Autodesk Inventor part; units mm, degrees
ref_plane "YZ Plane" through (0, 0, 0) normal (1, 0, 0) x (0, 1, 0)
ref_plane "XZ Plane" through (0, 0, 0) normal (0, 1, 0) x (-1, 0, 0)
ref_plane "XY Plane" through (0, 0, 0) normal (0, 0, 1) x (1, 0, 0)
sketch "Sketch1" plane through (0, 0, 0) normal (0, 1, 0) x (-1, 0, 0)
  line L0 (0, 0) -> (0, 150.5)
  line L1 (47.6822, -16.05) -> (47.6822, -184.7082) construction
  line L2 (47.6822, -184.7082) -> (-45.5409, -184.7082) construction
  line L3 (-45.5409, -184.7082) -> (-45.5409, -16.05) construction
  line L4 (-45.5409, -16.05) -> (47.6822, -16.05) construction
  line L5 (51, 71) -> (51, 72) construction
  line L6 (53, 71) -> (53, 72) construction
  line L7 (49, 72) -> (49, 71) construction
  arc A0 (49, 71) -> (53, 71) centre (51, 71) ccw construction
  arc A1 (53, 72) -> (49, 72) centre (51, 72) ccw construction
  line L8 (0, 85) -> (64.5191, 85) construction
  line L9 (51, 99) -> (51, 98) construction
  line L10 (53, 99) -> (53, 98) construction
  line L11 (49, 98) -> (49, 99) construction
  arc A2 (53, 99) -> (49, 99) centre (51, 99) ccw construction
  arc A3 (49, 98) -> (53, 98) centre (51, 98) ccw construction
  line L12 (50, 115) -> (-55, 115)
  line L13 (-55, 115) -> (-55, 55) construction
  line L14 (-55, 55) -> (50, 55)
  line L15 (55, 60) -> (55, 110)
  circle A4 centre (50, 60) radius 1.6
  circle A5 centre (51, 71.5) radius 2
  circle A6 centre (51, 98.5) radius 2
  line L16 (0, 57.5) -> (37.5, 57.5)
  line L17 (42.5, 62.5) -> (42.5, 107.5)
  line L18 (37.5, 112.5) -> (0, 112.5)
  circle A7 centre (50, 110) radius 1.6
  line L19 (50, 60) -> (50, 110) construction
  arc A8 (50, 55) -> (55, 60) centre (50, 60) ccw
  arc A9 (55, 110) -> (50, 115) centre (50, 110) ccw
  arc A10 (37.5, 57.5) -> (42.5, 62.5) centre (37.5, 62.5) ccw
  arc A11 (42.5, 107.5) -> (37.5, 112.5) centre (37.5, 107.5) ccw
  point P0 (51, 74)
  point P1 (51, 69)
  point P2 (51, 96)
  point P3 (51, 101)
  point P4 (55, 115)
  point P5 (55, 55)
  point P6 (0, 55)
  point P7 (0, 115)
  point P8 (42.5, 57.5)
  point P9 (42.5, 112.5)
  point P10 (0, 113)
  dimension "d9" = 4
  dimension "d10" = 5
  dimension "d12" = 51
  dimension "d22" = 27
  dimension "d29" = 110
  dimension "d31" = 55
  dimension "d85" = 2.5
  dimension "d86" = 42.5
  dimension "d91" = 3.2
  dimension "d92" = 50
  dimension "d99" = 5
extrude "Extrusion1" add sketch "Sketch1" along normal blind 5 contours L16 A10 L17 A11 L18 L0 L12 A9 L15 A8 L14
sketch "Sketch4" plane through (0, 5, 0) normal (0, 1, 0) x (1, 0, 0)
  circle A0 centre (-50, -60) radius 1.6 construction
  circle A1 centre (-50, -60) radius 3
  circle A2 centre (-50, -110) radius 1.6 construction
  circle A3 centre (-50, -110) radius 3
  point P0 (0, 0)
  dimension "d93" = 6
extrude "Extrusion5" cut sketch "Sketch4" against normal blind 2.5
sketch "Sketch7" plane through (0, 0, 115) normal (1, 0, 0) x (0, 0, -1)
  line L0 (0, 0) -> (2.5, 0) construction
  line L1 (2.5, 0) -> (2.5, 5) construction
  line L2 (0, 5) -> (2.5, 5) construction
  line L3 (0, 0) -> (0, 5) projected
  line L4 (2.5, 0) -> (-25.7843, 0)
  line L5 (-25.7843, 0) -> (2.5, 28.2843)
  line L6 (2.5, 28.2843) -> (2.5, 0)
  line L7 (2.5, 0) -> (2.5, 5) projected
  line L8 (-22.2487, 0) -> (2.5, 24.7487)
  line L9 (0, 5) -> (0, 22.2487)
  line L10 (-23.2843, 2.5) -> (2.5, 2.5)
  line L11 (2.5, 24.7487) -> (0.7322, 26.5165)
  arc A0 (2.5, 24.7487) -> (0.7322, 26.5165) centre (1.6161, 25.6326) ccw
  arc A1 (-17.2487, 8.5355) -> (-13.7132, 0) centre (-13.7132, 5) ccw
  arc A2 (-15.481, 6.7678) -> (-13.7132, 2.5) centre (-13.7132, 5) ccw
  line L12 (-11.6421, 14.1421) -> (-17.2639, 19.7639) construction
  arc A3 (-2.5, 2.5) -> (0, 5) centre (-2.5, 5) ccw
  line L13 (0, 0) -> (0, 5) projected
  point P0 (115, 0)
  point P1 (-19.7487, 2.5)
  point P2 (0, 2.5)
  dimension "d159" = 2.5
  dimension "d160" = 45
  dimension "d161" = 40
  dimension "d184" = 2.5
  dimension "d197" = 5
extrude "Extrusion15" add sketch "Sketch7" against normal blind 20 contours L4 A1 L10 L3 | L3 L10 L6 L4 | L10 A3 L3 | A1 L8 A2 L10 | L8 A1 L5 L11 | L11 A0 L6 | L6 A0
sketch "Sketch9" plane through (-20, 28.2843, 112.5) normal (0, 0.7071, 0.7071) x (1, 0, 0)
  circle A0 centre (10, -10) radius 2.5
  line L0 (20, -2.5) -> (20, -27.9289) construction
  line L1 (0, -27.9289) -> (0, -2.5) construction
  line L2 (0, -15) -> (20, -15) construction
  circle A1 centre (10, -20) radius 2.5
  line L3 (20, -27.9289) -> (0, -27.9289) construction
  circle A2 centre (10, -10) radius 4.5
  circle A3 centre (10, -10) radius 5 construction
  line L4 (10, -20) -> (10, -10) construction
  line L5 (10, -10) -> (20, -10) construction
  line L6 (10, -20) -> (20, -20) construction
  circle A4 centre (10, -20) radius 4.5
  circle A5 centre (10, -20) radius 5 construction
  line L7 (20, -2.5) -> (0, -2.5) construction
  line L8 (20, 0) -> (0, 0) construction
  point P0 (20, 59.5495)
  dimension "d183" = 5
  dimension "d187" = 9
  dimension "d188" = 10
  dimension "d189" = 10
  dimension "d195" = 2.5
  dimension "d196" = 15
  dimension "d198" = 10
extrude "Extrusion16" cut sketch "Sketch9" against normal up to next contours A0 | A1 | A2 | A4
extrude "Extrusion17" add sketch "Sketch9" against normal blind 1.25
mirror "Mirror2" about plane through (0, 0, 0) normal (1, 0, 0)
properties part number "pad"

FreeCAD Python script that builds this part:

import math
import FreeCAD as App
import Part
import Sketcher

V = App.Vector
Q = App.Units.Quantity

doc = App.newDocument("Part")
body = doc.addObject("PartDesign::Body", "Body")

sketch1 = doc.addObject("Sketcher::SketchObject", "Sketch")
body.addObject(sketch1)
sketch1.AttachmentSupport = (doc.XZ_Plane, [""])
sketch1.MapMode = "FlatFace"
sketch1.addGeometry([
    Part.LineSegment(V(-37.5, 57.5, 0), V(0, 57.5, 0)),
    Part.LineSegment(V(0, 57.5, 0), V(0, 55, 0)),
    Part.LineSegment(V(0, 55, 0), V(-50, 55, 0)),
    Part.ArcOfCircle(Part.Circle(V(-50, 60, 0), V(0, 0, 1), 5), math.radians(180), math.radians(270)),
    Part.LineSegment(V(-55, 60, 0), V(-55, 110, 0)),
    Part.ArcOfCircle(Part.Circle(V(-50, 110, 0), V(0, 0, 1), 5), math.radians(90), math.radians(180)),
    Part.LineSegment(V(-50, 115, 0), V(0, 115, 0)),
    Part.LineSegment(V(0, 115, 0), V(0, 112.5, 0)),
    Part.LineSegment(V(0, 112.5, 0), V(-37.5, 112.5, 0)),
    Part.ArcOfCircle(Part.Circle(V(-37.5, 107.5, 0), V(0, 0, 1), 5), math.radians(90), math.radians(180)),
    Part.LineSegment(V(-42.5, 107.5, 0), V(-42.5, 62.5, 0)),
    Part.ArcOfCircle(Part.Circle(V(-37.5, 62.5, 0), V(0, 0, 1), 5), math.radians(180), math.radians(270)),
    Part.Circle(V(-50, 60, 0), V(0, 0, 1), 1.6),
    Part.Circle(V(-51, 71.5, 0), V(0, 0, 1), 2),
    Part.Circle(V(-51, 98.5, 0), V(0, 0, 1), 2),
    Part.Circle(V(-50, 110, 0), V(0, 0, 1), 1.6),
], False)
sketch1.addConstraint([
    Sketcher.Constraint("Coincident", 0, 2, 1, 1),
    Sketcher.Constraint("Coincident", 1, 2, 2, 1),
    Sketcher.Constraint("Tangent", 2, 2, 3, 2),
    Sketcher.Constraint("Tangent", 3, 1, 4, 1),
    Sketcher.Constraint("Tangent", 4, 2, 5, 2),
    Sketcher.Constraint("Tangent", 5, 1, 6, 1),
    Sketcher.Constraint("Coincident", 6, 2, 7, 1),
    Sketcher.Constraint("Coincident", 7, 2, 8, 1),
    Sketcher.Constraint("Tangent", 8, 2, 9, 1),
    Sketcher.Constraint("Tangent", 9, 2, 10, 1),
    Sketcher.Constraint("Tangent", 10, 2, 11, 1),
    Sketcher.Constraint("Tangent", 11, 2, 0, 1),
    Sketcher.Constraint("Horizontal", 0),
    Sketcher.Constraint("Vertical", 1),
    Sketcher.Constraint("Horizontal", 2),
    Sketcher.Constraint("Vertical", 4),
    Sketcher.Constraint("Horizontal", 6),
    Sketcher.Constraint("Vertical", 7),
    Sketcher.Constraint("Horizontal", 8),
    Sketcher.Constraint("Vertical", 10),
    Sketcher.Constraint("Coincident", 12, 3, 3, 3),
    Sketcher.Constraint("Coincident", 15, 3, 5, 3),
    Sketcher.Constraint("Equal", 3, 5),
    Sketcher.Constraint("Equal", 5, 9),
    Sketcher.Constraint("Equal", 9, 11),
    Sketcher.Constraint("Equal", 13, 14),
    Sketcher.Constraint("Equal", 12, 15),
    Sketcher.Constraint("PointOnObject", 0, 2, -2),
    Sketcher.Constraint("PointOnObject", 6, 2, -2),
    Sketcher.Constraint("Vertical", 13, 3, 14, 3),
    Sketcher.Constraint("Equal", 6, 4),
    Sketcher.Constraint("Equal", 1, 7),
    Sketcher.Constraint("Diameter", 13, 4.0),
    Sketcher.Constraint("Radius", 3, 5.0),
    Sketcher.Constraint("Diameter", 12, 3.2),
    Sketcher.Constraint("DistanceX", 2, 2, 2, 1, 50.0),
    Sketcher.Constraint("DistanceY", 1, 2, 1, 1, 2.5),
    Sketcher.Constraint("DistanceY", -1, 1, 5, 3, 110.0),
    Sketcher.Constraint("DistanceX", 13, 3, -1, 1, 51.0),
    Sketcher.Constraint("DistanceY", 13, 3, 14, 3, 27.0),
    Sketcher.Constraint("DistanceX", 9, 2, -1, 1, 42.5),
    Sketcher.Constraint("DistanceY", 11, 3, 13, 3, 9.0),
])
pad1 = doc.addObject("PartDesign::Pad", "Pad")
body.addObject(pad1)
pad1.Profile = sketch1
pad1.Length = 5
pad1.Reversed = True

sketch2 = doc.addObject("Sketcher::SketchObject", "Sketch001")
body.addObject(sketch2)
sketch2.AttachmentSupport = (doc.XZ_Plane, [""])
sketch2.MapMode = "FlatFace"
sketch2.AttachmentOffset = App.Placement(V(0, 0, -5), App.Rotation())
sketch2.addGeometry([
    Part.Circle(V(-50, 60, 0), V(0, 0, 1), 3),
    Part.Circle(V(-50, 110, 0), V(0, 0, 1), 3),
], False)
sketch2.addConstraint([
    Sketcher.Constraint("Equal", 0, 1),
    Sketcher.Constraint("Vertical", 0, 3, 1, 3),
    Sketcher.Constraint("Diameter", 0, 6.0),
    Sketcher.Constraint("DistanceX", 0, 3, -1, 1, 50.0),
    Sketcher.Constraint("DistanceY", -1, 1, 0, 3, 60.0),
    Sketcher.Constraint("DistanceY", -1, 1, 1, 3, 110.0),
])
pocket1 = doc.addObject("PartDesign::Pocket", "Pocket")
body.addObject(pocket1)
pocket1.Profile = sketch2
pocket1.Length = 2.5
pocket1.Reversed = True

sketch3 = doc.addObject("Sketcher::SketchObject", "Sketch002")
body.addObject(sketch3)
sketch3.AttachmentSupport = (doc.YZ_Plane, [""])
sketch3.MapMode = "FlatFace"
sketch3.addGeometry([
    Part.LineSegment(V(0, 128.7, 0), V(0, 112.5, 0)),
    Part.LineSegment(V(0, 112.5, 0), V(2.5, 112.5, 0)),
    Part.LineSegment(V(2.5, 112.5, 0), V(2.5, 115, 0)),
    Part.LineSegment(V(2.5, 115, 0), V(5, 115, 0)),
    Part.ArcOfCircle(Part.Circle(V(5, 117.5, 0), V(0, 0, 1), 2.5), math.radians(180), math.radians(270)),
    Part.LineSegment(V(2.5, 117.5, 0), V(2.5, 128.7, 0)),
    Part.ArcOfCircle(Part.Circle(V(5, 128.7, 0), V(0, 0, 1), 2.5), math.radians(45), math.radians(180)),
    Part.LineSegment(V(6.8, 130.5, 0), V(24.7, 112.5, 0)),
    Part.ArcOfCircle(Part.Circle(V(25.6, 113.4, 0), V(0, 0, 1), 1.3), math.radians(-135), math.radians(45)),
    Part.LineSegment(V(26.5, 114.3, 0), V(8.5, 132.2, 0)),
    Part.ArcOfCircle(Part.Circle(V(5, 128.7, 0), V(0, 0, 1), 5), math.radians(45), math.radians(180)),
], False)
sketch3.addConstraint([
    Sketcher.Constraint("Coincident", 0, 2, 1, 1),
    Sketcher.Constraint("Coincident", 1, 2, 2, 1),
    Sketcher.Constraint("Coincident", 2, 2, 3, 1),
    Sketcher.Constraint("Tangent", 3, 2, 4, 2),
    Sketcher.Constraint("Tangent", 4, 1, 5, 1),
    Sketcher.Constraint("Tangent", 5, 2, 6, 2),
    Sketcher.Constraint("Tangent", 6, 1, 7, 1),
    Sketcher.Constraint("Tangent", 7, 2, 8, 1),
    Sketcher.Constraint("Tangent", 8, 2, 9, 1),
    Sketcher.Constraint("Tangent", 9, 2, 10, 1),
    Sketcher.Constraint("Tangent", 10, 2, 0, 1),
    Sketcher.Constraint("Vertical", 0),
    Sketcher.Constraint("Horizontal", 1),
    Sketcher.Constraint("Vertical", 2),
    Sketcher.Constraint("Horizontal", 3),
    Sketcher.Constraint("Vertical", 5),
    Sketcher.Constraint("Coincident", 10, 3, 6, 3),
    Sketcher.Constraint("Equal", 4, 6),
    Sketcher.Constraint("PointOnObject", 0, 2, -2),
    Sketcher.Constraint("Parallel", 7, 9),
    Sketcher.Constraint("Horizontal", 1, 2, 7, 2),
    Sketcher.Constraint("Vertical", 2, 2, 4, 1),
    Sketcher.Constraint("Equal", 1, 3),
    Sketcher.Constraint("Equal", 3, 2),
    Sketcher.Constraint("Radius", 10, 5.0),
    Sketcher.Constraint("Angle", 7, Q("-45.0002 deg")),
    Sketcher.Constraint("DistanceY", -1, 1, 2, 2, 115.0),
    Sketcher.Constraint("Distance", 7, 25.429),
])
pad2 = doc.addObject("PartDesign::Pad", "Pad001")
body.addObject(pad2)
pad2.Profile = sketch3
pad2.Length = 20
pad2.Reversed = True

sketch4 = doc.addObject("Sketcher::SketchObject", "Sketch003")
body.addObject(sketch4)
sketch4.Placement = App.Placement(V(-20, 28.2843, 112.5), App.Rotation(V(1, 0, 0), V(0, 0.707106781, -0.707106781), V(0, 0.707106781, 0.707106781), "ZXY"))
sketch4.addGeometry([
    Part.Circle(V(10, -10, 0), V(0, 0, 1), 4.5),
    Part.Circle(V(10, -20, 0), V(0, 0, 1), 4.5),
], False)
sketch4.addConstraint([
    Sketcher.Constraint("Equal", 0, 1),
    Sketcher.Constraint("Vertical", 0, 3, 1, 3),
    Sketcher.Constraint("Diameter", 0, 9.0),
    Sketcher.Constraint("DistanceX", -1, 1, 0, 3, 10.0),
    Sketcher.Constraint("DistanceY", 0, 3, -1, 1, 10.0),
    Sketcher.Constraint("DistanceY", 1, 3, 0, 3, 10.0),
])
pocket2 = doc.addObject("PartDesign::Pocket", "Pocket001")
body.addObject(pocket2)
pocket2.Profile = sketch4
pocket2.Type = "UpToFirst"

sketch5 = doc.addObject("Sketcher::SketchObject", "Sketch004")
body.addObject(sketch5)
sketch5.Placement = App.Placement(V(-20, 28.2843, 112.5), App.Rotation(V(1, 0, 0), V(0, 0.707106781, -0.707106781), V(0, 0.707106781, 0.707106781), "ZXY"))
sketch5.addGeometry([
    Part.Circle(V(10, -10, 0), V(0, 0, 1), 4.5),
    Part.Circle(V(10, -10, 0), V(0, 0, 1), 2.5),
    Part.Circle(V(10, -20, 0), V(0, 0, 1), 4.5),
    Part.Circle(V(10, -20, 0), V(0, 0, 1), 2.5),
], False)
sketch5.addConstraint([
    Sketcher.Constraint("Coincident", 1, 3, 0, 3),
    Sketcher.Constraint("Coincident", 3, 3, 2, 3),
    Sketcher.Constraint("Equal", 0, 2),
    Sketcher.Constraint("Equal", 1, 3),
    Sketcher.Constraint("Vertical", 1, 3, 2, 3),
    Sketcher.Constraint("Diameter", 0, 9.0),
    Sketcher.Constraint("Diameter", 1, 5.0),
    Sketcher.Constraint("DistanceX", -1, 1, 0, 3, 10.0),
    Sketcher.Constraint("DistanceY", 0, 3, -1, 1, 10.0),
    Sketcher.Constraint("DistanceY", 2, 3, 0, 3, 10.0),
])
pad3 = doc.addObject("PartDesign::Pad", "Pad002")
body.addObject(pad3)
pad3.Profile = sketch5
pad3.Length = 1.25
pad3.Reversed = True
doc.recompute()

mirrored = doc.addObject("PartDesign::Mirrored", "Mirrored")
body.addObject(mirrored)
mirrored.TransformMode = "Transform body"
mirrored.MirrorPlane = (doc.YZ_Plane, [""])
body.Tip = mirrored

doc.recompute()
